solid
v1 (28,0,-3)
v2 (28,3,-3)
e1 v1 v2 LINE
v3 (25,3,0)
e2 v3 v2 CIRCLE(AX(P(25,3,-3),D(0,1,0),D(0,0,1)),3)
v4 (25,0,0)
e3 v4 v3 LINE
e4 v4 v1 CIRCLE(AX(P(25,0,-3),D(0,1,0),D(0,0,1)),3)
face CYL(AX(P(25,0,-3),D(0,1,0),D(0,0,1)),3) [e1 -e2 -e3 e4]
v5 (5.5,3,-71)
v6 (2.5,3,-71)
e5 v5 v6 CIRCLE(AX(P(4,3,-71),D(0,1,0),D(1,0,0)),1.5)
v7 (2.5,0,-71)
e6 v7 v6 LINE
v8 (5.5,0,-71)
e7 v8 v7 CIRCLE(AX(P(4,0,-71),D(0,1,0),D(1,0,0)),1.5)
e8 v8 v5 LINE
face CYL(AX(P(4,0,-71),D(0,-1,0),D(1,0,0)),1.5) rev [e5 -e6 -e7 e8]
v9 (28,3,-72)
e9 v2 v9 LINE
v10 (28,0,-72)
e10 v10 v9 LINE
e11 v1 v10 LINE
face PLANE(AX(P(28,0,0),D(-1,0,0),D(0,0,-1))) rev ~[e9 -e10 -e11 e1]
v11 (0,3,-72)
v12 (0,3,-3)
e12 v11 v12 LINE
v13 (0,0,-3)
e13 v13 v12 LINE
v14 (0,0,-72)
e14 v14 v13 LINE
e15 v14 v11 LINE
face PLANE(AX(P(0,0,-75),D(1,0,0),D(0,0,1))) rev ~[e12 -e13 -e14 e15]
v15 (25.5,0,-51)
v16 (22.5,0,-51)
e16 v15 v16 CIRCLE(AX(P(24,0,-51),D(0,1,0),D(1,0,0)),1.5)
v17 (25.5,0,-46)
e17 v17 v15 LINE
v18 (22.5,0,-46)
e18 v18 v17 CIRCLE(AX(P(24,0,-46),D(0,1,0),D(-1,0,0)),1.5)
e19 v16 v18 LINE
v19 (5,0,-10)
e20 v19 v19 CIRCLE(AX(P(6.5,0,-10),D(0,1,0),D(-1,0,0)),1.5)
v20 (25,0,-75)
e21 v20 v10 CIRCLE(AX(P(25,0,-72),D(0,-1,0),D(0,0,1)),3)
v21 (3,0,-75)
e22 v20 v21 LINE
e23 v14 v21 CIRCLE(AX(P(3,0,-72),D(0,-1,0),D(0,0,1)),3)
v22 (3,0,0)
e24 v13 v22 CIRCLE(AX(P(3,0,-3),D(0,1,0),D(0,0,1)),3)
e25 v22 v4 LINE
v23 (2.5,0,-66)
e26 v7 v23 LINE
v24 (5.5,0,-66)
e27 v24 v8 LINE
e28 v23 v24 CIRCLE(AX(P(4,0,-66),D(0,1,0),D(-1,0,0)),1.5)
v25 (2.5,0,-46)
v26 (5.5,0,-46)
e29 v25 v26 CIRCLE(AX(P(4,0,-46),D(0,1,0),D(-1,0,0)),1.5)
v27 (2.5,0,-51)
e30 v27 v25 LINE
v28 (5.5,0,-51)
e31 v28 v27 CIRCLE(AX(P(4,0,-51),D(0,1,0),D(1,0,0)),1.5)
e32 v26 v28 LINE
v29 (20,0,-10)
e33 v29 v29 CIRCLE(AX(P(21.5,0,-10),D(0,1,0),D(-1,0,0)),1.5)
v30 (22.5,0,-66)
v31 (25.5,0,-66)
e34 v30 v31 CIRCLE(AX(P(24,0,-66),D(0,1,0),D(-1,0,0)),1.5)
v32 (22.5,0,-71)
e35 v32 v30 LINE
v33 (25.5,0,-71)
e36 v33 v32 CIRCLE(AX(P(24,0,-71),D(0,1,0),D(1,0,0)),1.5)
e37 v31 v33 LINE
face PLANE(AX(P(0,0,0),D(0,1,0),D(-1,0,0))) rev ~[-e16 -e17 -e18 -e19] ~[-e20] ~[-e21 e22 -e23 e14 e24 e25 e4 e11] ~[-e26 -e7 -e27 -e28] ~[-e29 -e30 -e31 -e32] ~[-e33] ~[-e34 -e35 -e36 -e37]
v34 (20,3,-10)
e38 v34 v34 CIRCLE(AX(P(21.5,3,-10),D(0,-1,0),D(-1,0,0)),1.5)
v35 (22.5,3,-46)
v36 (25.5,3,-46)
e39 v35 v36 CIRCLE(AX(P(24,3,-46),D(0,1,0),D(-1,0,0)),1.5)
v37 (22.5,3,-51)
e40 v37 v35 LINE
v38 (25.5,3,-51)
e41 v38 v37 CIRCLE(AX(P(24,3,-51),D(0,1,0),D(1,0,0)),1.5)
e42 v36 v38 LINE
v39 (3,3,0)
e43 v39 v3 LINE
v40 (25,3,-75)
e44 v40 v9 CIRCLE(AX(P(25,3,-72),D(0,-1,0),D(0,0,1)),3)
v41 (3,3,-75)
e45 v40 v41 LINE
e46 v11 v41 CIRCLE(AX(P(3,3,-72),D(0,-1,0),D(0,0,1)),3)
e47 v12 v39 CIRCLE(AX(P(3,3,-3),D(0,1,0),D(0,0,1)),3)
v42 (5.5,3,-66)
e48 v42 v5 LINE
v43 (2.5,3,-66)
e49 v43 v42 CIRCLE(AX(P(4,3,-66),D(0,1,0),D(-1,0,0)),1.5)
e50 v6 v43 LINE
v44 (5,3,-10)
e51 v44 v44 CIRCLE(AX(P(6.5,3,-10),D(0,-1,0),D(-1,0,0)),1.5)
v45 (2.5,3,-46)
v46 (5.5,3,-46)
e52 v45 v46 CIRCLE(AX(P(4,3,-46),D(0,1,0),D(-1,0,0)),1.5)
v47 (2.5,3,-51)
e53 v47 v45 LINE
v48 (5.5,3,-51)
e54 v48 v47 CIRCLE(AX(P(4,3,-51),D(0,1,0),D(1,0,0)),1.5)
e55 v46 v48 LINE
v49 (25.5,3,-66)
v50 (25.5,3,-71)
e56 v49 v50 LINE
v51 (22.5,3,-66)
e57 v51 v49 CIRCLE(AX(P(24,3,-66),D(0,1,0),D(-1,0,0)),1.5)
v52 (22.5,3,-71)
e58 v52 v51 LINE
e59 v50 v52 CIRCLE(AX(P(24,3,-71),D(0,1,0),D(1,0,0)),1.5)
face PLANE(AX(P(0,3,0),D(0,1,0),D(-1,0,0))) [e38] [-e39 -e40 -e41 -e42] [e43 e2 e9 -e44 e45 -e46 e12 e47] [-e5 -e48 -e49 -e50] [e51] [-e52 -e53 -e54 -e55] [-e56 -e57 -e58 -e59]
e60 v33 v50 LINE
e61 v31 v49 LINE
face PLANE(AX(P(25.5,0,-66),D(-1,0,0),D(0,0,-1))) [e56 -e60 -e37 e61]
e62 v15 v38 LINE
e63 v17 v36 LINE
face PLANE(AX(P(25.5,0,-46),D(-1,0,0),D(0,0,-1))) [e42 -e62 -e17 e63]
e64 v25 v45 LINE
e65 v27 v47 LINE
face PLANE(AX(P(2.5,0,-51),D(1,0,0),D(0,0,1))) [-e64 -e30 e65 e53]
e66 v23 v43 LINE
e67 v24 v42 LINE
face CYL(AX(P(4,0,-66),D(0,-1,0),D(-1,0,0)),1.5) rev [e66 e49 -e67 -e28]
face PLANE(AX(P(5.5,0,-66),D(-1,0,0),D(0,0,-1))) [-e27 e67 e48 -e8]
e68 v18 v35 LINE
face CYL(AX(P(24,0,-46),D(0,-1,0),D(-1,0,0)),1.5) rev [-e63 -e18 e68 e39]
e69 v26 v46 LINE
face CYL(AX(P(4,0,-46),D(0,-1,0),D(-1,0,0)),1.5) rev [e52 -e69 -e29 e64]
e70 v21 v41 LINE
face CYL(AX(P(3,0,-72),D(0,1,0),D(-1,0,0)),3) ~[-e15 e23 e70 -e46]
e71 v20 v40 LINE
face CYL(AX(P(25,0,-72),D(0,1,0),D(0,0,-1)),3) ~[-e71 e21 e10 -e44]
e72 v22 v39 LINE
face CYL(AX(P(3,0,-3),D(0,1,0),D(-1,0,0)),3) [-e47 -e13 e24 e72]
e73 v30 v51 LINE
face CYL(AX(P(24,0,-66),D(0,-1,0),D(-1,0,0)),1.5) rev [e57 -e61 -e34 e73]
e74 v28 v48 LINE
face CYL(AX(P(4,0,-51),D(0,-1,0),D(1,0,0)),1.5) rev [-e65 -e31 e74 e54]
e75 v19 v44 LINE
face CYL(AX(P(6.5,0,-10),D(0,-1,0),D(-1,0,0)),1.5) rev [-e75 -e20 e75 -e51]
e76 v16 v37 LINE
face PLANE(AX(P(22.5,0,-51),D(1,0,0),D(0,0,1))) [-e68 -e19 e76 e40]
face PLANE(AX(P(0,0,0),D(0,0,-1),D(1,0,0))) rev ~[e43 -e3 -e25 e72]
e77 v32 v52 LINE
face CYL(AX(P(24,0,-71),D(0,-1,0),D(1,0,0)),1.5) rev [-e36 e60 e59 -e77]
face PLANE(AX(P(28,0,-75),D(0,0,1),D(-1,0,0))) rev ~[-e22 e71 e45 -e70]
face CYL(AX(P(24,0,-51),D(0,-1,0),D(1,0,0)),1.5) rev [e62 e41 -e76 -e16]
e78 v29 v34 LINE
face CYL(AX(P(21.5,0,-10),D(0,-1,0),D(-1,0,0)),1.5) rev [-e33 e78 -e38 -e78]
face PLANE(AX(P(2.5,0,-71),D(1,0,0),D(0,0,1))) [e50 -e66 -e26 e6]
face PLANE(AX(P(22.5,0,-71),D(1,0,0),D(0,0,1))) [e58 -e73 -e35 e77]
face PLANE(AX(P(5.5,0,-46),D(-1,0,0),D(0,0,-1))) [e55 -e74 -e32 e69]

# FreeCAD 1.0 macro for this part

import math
import FreeCAD as App
import Part
import Sketcher

V = App.Vector


def edges_at(feature, points):
    """Names of the edges that pass closest to the given points."""
    edges = feature.Shape.Edges
    near = lambda p: min(range(len(edges)), key=lambda i: edges[i].distToShape(Part.Vertex(*p))[0])
    return sorted({f"Edge{near(p) + 1}" for p in points})

doc = App.newDocument("Part")
params = doc.addObject("Spreadsheet::Sheet", "Params")
for row, (alias, value) in enumerate([
    ("sketch1_radius", "1.5 mm"),
    ("sketch1_width", "28 mm"),
    ("sketch1_height", "75 mm"),
    ("sketch1_height2", "5 mm"),
    ("pad1_length", "3 mm"),
    ("fillet_radius", "3 mm"),
    ("sketch2_diameter", "3 mm"),
], start=1):
    params.set(f"A{row}", alias)
    params.set(f"B{row}", "=" + value)
    params.setAlias(f"B{row}", alias)

body = doc.addObject("PartDesign::Body", "Body")

sketch1 = doc.addObject("Sketcher::SketchObject", "Sketch")
body.addObject(sketch1)
sketch1.AttachmentSupport = (doc.XZ_Plane, [""])
sketch1.MapMode = "FlatFace"
sketch1.addGeometry(Part.LineSegment(V(0, -75, 0), V(0, 0, 0)), False)
sketch1.addGeometry(Part.LineSegment(V(0, 0, 0), V(28, 0, 0)), False)
sketch1.addGeometry(Part.LineSegment(V(28, 0, 0), V(28, -75, 0)), False)
sketch1.addGeometry(Part.LineSegment(V(28, -75, 0), V(0, -75, 0)), False)
sketch1.addGeometry(Part.LineSegment(V(22.5, -66, 0), V(22.5, -71, 0)), False)
sketch1.addGeometry(Part.ArcOfCircle(Part.Circle(V(24, -71, 0), V(0, 0, 1), 1.5), math.radians(180), math.radians(360)), False)
sketch1.addGeometry(Part.LineSegment(V(25.5, -71, 0), V(25.5, -66, 0)), False)
sketch1.addGeometry(Part.ArcOfCircle(Part.Circle(V(24, -66, 0), V(0, 0, 1), 1.5), math.radians(0), math.radians(180)), False)
sketch1.addGeometry(Part.LineSegment(V(22.5, -46, 0), V(22.5, -51, 0)), False)
sketch1.addGeometry(Part.ArcOfCircle(Part.Circle(V(24, -51, 0), V(0, 0, 1), 1.5), math.radians(180), math.radians(360)), False)
sketch1.addGeometry(Part.LineSegment(V(25.5, -51, 0), V(25.5, -46, 0)), False)
sketch1.addGeometry(Part.ArcOfCircle(Part.Circle(V(24, -46, 0), V(0, 0, 1), 1.5), math.radians(0), math.radians(180)), False)
sketch1.addGeometry(Part.LineSegment(V(2.5, -66, 0), V(2.5, -71, 0)), False)
sketch1.addGeometry(Part.ArcOfCircle(Part.Circle(V(4, -71, 0), V(0, 0, 1), 1.5), math.radians(180), math.radians(360)), False)
sketch1.addGeometry(Part.LineSegment(V(5.5, -71, 0), V(5.5, -66, 0)), False)
sketch1.addGeometry(Part.ArcOfCircle(Part.Circle(V(4, -66, 0), V(0, 0, 1), 1.5), math.radians(0), math.radians(180)), False)
sketch1.addGeometry(Part.LineSegment(V(2.5, -46, 0), V(2.5, -51, 0)), False)
sketch1.addGeometry(Part.ArcOfCircle(Part.Circle(V(4, -51, 0), V(0, 0, 1), 1.5), math.radians(180), math.radians(360)), False)
sketch1.addGeometry(Part.LineSegment(V(5.5, -51, 0), V(5.5, -46, 0)), False)
sketch1.addGeometry(Part.ArcOfCircle(Part.Circle(V(4, -46, 0), V(0, 0, 1), 1.5), math.radians(0), math.radians(180)), False)
sketch1.addConstraint(Sketcher.Constraint("Coincident", 0, 2, 1, 1))
sketch1.addConstraint(Sketcher.Constraint("Coincident", 1, 2, 2, 1))
sketch1.addConstraint(Sketcher.Constraint("Coincident", 2, 2, 3, 1))
sketch1.addConstraint(Sketcher.Constraint("Coincident", 3, 2, 0, 1))
sketch1.addConstraint(Sketcher.Constraint("Tangent", 4, 2, 5, 1))
sketch1.addConstraint(Sketcher.Constraint("Tangent", 5, 2, 6, 1))
sketch1.addConstraint(Sketcher.Constraint("Tangent", 6, 2, 7, 1))
sketch1.addConstraint(Sketcher.Constraint("Tangent", 7, 2, 4, 1))
sketch1.addConstraint(Sketcher.Constraint("Tangent", 8, 2, 9, 1))
sketch1.addConstraint(Sketcher.Constraint("Tangent", 9, 2, 10, 1))
sketch1.addConstraint(Sketcher.Constraint("Tangent", 10, 2, 11, 1))
sketch1.addConstraint(Sketcher.Constraint("Tangent", 11, 2, 8, 1))
sketch1.addConstraint(Sketcher.Constraint("Tangent", 12, 2, 13, 1))
sketch1.addConstraint(Sketcher.Constraint("Tangent", 13, 2, 14, 1))
sketch1.addConstraint(Sketcher.Constraint("Tangent", 14, 2, 15, 1))
sketch1.addConstraint(Sketcher.Constraint("Tangent", 15, 2, 12, 1))
sketch1.addConstraint(Sketcher.Constraint("Tangent", 16, 2, 17, 1))
sketch1.addConstraint(Sketcher.Constraint("Tangent", 17, 2, 18, 1))
sketch1.addConstraint(Sketcher.Constraint("Tangent", 18, 2, 19, 1))
sketch1.addConstraint(Sketcher.Constraint("Tangent", 19, 2, 16, 1))
sketch1.addConstraint(Sketcher.Constraint("Vertical", 0))
sketch1.addConstraint(Sketcher.Constraint("Horizontal", 1))
sketch1.addConstraint(Sketcher.Constraint("Vertical", 2))
sketch1.addConstraint(Sketcher.Constraint("Horizontal", 3))
sketch1.addConstraint(Sketcher.Constraint("Vertical", 4))
sketch1.addConstraint(Sketcher.Constraint("Vertical", 6))
sketch1.addConstraint(Sketcher.Constraint("Vertical", 8))
sketch1.addConstraint(Sketcher.Constraint("Vertical", 10))
sketch1.addConstraint(Sketcher.Constraint("Vertical", 12))
sketch1.addConstraint(Sketcher.Constraint("Vertical", 14))
sketch1.addConstraint(Sketcher.Constraint("Vertical", 16))
sketch1.addConstraint(Sketcher.Constraint("Vertical", 18))
sketch1.addConstraint(Sketcher.Constraint("Coincident", 0, 2, -1, 1))
sketch1.addConstraint(Sketcher.Constraint("Equal", 7, 9))
sketch1.addConstraint(Sketcher.Constraint("Equal", 11, 13))
sketch1.addConstraint(Sketcher.Constraint("Equal", 15, 17))
sketch1.addConstraint(Sketcher.Constraint("Horizontal", 5, 3, 13, 3))
sketch1.addConstraint(Sketcher.Constraint("Horizontal", 7, 3, 15, 3))
sketch1.addConstraint(Sketcher.Constraint("Horizontal", 9, 3, 17, 3))
sketch1.addConstraint(Sketcher.Constraint("Horizontal", 11, 3, 19, 3))
sketch1.addConstraint(Sketcher.Constraint("Vertical", 7, 3, 9, 3))
sketch1.addConstraint(Sketcher.Constraint("Vertical", 15, 3, 17, 3))
sketch1.addConstraint(Sketcher.Constraint("Equal", 6, 8))
sketch1.addConstraint(Sketcher.Constraint("Radius", 5, 1.5))
sketch1.addConstraint(Sketcher.Constraint("DistanceX", 1, 1, 1, 2, 28.0))
sketch1.addConstraint(Sketcher.Constraint("DistanceY", 0, 1, 0, 2, 75.0))
sketch1.addConstraint(Sketcher.Constraint("DistanceY", 4, 2, 4, 1, 5.0))
sketch1.addConstraint(Sketcher.Constraint("DistanceX", -1, 1, 13, 3, 4.0))
sketch1.addConstraint(Sketcher.Constraint("DistanceY", 7, 3, 9, 3, 15.0))
sketch1.addConstraint(Sketcher.Constraint("DistanceX", 13, 3, 5, 3, 20.0))
sketch1.addConstraint(Sketcher.Constraint("DistanceY", 2, 2, 5, 3, 4.0))
sketch1.setExpression("Constraints[43]", "Params.sketch1_radius")
sketch1.setExpression("Constraints[44]", "Params.sketch1_width")
sketch1.setExpression("Constraints[45]", "Params.sketch1_height")
sketch1.setExpression("Constraints[46]", "Params.sketch1_height2")
pad1 = doc.addObject("PartDesign::Pad", "Pad")
body.addObject(pad1)
pad1.Profile = sketch1
pad1.setExpression("Length", "Params.pad1_length")
pad1.Reversed = True
doc.recompute()

fillet = doc.addObject("PartDesign::Fillet", "Fillet")
body.addObject(fillet)
fillet.Base = (pad1, edges_at(pad1, [
    (0, 1.5, 0),
    (28, 1.5, 0),
    (0, 1.5, -75),
    (28, 1.5, -75),
]))
fillet.setExpression("Radius", "Params.fillet_radius")

sketch2 = doc.addObject("Sketcher::SketchObject", "Sketch001")
body.addObject(sketch2)
sketch2.AttachmentSupport = (doc.XZ_Plane, [""])
sketch2.MapMode = "FlatFace"
sketch2.addGeometry(Part.Circle(V(6.5, -10, 0), V(0, 0, 1), 1.5), False)
sketch2.addGeometry(Part.Circle(V(21.5, -10, 0), V(0, 0, 1), 1.5), False)
sketch2.addConstraint(Sketcher.Constraint("Equal", 0, 1))
sketch2.addConstraint(Sketcher.Constraint("Horizontal", 0, 3, 1, 3))
sketch2.addConstraint(Sketcher.Constraint("Diameter", 0, 3.0))
sketch2.addConstraint(Sketcher.Constraint("DistanceY", 0, 3, -1, 1, 10.0))
sketch2.addConstraint(Sketcher.Constraint("DistanceX", 0, 3, 1, 3, 15.0))
sketch2.addConstraint(Sketcher.Constraint("DistanceX", -1, 1, 0, 3, 6.5))
sketch2.setExpression("Constraints[2]", "Params.sketch2_diameter")
pocket1 = doc.addObject("PartDesign::Pocket", "Pocket")
body.addObject(pocket1)
pocket1.Profile = sketch2
pocket1.Type = "ThroughAll"

doc.recompute()
